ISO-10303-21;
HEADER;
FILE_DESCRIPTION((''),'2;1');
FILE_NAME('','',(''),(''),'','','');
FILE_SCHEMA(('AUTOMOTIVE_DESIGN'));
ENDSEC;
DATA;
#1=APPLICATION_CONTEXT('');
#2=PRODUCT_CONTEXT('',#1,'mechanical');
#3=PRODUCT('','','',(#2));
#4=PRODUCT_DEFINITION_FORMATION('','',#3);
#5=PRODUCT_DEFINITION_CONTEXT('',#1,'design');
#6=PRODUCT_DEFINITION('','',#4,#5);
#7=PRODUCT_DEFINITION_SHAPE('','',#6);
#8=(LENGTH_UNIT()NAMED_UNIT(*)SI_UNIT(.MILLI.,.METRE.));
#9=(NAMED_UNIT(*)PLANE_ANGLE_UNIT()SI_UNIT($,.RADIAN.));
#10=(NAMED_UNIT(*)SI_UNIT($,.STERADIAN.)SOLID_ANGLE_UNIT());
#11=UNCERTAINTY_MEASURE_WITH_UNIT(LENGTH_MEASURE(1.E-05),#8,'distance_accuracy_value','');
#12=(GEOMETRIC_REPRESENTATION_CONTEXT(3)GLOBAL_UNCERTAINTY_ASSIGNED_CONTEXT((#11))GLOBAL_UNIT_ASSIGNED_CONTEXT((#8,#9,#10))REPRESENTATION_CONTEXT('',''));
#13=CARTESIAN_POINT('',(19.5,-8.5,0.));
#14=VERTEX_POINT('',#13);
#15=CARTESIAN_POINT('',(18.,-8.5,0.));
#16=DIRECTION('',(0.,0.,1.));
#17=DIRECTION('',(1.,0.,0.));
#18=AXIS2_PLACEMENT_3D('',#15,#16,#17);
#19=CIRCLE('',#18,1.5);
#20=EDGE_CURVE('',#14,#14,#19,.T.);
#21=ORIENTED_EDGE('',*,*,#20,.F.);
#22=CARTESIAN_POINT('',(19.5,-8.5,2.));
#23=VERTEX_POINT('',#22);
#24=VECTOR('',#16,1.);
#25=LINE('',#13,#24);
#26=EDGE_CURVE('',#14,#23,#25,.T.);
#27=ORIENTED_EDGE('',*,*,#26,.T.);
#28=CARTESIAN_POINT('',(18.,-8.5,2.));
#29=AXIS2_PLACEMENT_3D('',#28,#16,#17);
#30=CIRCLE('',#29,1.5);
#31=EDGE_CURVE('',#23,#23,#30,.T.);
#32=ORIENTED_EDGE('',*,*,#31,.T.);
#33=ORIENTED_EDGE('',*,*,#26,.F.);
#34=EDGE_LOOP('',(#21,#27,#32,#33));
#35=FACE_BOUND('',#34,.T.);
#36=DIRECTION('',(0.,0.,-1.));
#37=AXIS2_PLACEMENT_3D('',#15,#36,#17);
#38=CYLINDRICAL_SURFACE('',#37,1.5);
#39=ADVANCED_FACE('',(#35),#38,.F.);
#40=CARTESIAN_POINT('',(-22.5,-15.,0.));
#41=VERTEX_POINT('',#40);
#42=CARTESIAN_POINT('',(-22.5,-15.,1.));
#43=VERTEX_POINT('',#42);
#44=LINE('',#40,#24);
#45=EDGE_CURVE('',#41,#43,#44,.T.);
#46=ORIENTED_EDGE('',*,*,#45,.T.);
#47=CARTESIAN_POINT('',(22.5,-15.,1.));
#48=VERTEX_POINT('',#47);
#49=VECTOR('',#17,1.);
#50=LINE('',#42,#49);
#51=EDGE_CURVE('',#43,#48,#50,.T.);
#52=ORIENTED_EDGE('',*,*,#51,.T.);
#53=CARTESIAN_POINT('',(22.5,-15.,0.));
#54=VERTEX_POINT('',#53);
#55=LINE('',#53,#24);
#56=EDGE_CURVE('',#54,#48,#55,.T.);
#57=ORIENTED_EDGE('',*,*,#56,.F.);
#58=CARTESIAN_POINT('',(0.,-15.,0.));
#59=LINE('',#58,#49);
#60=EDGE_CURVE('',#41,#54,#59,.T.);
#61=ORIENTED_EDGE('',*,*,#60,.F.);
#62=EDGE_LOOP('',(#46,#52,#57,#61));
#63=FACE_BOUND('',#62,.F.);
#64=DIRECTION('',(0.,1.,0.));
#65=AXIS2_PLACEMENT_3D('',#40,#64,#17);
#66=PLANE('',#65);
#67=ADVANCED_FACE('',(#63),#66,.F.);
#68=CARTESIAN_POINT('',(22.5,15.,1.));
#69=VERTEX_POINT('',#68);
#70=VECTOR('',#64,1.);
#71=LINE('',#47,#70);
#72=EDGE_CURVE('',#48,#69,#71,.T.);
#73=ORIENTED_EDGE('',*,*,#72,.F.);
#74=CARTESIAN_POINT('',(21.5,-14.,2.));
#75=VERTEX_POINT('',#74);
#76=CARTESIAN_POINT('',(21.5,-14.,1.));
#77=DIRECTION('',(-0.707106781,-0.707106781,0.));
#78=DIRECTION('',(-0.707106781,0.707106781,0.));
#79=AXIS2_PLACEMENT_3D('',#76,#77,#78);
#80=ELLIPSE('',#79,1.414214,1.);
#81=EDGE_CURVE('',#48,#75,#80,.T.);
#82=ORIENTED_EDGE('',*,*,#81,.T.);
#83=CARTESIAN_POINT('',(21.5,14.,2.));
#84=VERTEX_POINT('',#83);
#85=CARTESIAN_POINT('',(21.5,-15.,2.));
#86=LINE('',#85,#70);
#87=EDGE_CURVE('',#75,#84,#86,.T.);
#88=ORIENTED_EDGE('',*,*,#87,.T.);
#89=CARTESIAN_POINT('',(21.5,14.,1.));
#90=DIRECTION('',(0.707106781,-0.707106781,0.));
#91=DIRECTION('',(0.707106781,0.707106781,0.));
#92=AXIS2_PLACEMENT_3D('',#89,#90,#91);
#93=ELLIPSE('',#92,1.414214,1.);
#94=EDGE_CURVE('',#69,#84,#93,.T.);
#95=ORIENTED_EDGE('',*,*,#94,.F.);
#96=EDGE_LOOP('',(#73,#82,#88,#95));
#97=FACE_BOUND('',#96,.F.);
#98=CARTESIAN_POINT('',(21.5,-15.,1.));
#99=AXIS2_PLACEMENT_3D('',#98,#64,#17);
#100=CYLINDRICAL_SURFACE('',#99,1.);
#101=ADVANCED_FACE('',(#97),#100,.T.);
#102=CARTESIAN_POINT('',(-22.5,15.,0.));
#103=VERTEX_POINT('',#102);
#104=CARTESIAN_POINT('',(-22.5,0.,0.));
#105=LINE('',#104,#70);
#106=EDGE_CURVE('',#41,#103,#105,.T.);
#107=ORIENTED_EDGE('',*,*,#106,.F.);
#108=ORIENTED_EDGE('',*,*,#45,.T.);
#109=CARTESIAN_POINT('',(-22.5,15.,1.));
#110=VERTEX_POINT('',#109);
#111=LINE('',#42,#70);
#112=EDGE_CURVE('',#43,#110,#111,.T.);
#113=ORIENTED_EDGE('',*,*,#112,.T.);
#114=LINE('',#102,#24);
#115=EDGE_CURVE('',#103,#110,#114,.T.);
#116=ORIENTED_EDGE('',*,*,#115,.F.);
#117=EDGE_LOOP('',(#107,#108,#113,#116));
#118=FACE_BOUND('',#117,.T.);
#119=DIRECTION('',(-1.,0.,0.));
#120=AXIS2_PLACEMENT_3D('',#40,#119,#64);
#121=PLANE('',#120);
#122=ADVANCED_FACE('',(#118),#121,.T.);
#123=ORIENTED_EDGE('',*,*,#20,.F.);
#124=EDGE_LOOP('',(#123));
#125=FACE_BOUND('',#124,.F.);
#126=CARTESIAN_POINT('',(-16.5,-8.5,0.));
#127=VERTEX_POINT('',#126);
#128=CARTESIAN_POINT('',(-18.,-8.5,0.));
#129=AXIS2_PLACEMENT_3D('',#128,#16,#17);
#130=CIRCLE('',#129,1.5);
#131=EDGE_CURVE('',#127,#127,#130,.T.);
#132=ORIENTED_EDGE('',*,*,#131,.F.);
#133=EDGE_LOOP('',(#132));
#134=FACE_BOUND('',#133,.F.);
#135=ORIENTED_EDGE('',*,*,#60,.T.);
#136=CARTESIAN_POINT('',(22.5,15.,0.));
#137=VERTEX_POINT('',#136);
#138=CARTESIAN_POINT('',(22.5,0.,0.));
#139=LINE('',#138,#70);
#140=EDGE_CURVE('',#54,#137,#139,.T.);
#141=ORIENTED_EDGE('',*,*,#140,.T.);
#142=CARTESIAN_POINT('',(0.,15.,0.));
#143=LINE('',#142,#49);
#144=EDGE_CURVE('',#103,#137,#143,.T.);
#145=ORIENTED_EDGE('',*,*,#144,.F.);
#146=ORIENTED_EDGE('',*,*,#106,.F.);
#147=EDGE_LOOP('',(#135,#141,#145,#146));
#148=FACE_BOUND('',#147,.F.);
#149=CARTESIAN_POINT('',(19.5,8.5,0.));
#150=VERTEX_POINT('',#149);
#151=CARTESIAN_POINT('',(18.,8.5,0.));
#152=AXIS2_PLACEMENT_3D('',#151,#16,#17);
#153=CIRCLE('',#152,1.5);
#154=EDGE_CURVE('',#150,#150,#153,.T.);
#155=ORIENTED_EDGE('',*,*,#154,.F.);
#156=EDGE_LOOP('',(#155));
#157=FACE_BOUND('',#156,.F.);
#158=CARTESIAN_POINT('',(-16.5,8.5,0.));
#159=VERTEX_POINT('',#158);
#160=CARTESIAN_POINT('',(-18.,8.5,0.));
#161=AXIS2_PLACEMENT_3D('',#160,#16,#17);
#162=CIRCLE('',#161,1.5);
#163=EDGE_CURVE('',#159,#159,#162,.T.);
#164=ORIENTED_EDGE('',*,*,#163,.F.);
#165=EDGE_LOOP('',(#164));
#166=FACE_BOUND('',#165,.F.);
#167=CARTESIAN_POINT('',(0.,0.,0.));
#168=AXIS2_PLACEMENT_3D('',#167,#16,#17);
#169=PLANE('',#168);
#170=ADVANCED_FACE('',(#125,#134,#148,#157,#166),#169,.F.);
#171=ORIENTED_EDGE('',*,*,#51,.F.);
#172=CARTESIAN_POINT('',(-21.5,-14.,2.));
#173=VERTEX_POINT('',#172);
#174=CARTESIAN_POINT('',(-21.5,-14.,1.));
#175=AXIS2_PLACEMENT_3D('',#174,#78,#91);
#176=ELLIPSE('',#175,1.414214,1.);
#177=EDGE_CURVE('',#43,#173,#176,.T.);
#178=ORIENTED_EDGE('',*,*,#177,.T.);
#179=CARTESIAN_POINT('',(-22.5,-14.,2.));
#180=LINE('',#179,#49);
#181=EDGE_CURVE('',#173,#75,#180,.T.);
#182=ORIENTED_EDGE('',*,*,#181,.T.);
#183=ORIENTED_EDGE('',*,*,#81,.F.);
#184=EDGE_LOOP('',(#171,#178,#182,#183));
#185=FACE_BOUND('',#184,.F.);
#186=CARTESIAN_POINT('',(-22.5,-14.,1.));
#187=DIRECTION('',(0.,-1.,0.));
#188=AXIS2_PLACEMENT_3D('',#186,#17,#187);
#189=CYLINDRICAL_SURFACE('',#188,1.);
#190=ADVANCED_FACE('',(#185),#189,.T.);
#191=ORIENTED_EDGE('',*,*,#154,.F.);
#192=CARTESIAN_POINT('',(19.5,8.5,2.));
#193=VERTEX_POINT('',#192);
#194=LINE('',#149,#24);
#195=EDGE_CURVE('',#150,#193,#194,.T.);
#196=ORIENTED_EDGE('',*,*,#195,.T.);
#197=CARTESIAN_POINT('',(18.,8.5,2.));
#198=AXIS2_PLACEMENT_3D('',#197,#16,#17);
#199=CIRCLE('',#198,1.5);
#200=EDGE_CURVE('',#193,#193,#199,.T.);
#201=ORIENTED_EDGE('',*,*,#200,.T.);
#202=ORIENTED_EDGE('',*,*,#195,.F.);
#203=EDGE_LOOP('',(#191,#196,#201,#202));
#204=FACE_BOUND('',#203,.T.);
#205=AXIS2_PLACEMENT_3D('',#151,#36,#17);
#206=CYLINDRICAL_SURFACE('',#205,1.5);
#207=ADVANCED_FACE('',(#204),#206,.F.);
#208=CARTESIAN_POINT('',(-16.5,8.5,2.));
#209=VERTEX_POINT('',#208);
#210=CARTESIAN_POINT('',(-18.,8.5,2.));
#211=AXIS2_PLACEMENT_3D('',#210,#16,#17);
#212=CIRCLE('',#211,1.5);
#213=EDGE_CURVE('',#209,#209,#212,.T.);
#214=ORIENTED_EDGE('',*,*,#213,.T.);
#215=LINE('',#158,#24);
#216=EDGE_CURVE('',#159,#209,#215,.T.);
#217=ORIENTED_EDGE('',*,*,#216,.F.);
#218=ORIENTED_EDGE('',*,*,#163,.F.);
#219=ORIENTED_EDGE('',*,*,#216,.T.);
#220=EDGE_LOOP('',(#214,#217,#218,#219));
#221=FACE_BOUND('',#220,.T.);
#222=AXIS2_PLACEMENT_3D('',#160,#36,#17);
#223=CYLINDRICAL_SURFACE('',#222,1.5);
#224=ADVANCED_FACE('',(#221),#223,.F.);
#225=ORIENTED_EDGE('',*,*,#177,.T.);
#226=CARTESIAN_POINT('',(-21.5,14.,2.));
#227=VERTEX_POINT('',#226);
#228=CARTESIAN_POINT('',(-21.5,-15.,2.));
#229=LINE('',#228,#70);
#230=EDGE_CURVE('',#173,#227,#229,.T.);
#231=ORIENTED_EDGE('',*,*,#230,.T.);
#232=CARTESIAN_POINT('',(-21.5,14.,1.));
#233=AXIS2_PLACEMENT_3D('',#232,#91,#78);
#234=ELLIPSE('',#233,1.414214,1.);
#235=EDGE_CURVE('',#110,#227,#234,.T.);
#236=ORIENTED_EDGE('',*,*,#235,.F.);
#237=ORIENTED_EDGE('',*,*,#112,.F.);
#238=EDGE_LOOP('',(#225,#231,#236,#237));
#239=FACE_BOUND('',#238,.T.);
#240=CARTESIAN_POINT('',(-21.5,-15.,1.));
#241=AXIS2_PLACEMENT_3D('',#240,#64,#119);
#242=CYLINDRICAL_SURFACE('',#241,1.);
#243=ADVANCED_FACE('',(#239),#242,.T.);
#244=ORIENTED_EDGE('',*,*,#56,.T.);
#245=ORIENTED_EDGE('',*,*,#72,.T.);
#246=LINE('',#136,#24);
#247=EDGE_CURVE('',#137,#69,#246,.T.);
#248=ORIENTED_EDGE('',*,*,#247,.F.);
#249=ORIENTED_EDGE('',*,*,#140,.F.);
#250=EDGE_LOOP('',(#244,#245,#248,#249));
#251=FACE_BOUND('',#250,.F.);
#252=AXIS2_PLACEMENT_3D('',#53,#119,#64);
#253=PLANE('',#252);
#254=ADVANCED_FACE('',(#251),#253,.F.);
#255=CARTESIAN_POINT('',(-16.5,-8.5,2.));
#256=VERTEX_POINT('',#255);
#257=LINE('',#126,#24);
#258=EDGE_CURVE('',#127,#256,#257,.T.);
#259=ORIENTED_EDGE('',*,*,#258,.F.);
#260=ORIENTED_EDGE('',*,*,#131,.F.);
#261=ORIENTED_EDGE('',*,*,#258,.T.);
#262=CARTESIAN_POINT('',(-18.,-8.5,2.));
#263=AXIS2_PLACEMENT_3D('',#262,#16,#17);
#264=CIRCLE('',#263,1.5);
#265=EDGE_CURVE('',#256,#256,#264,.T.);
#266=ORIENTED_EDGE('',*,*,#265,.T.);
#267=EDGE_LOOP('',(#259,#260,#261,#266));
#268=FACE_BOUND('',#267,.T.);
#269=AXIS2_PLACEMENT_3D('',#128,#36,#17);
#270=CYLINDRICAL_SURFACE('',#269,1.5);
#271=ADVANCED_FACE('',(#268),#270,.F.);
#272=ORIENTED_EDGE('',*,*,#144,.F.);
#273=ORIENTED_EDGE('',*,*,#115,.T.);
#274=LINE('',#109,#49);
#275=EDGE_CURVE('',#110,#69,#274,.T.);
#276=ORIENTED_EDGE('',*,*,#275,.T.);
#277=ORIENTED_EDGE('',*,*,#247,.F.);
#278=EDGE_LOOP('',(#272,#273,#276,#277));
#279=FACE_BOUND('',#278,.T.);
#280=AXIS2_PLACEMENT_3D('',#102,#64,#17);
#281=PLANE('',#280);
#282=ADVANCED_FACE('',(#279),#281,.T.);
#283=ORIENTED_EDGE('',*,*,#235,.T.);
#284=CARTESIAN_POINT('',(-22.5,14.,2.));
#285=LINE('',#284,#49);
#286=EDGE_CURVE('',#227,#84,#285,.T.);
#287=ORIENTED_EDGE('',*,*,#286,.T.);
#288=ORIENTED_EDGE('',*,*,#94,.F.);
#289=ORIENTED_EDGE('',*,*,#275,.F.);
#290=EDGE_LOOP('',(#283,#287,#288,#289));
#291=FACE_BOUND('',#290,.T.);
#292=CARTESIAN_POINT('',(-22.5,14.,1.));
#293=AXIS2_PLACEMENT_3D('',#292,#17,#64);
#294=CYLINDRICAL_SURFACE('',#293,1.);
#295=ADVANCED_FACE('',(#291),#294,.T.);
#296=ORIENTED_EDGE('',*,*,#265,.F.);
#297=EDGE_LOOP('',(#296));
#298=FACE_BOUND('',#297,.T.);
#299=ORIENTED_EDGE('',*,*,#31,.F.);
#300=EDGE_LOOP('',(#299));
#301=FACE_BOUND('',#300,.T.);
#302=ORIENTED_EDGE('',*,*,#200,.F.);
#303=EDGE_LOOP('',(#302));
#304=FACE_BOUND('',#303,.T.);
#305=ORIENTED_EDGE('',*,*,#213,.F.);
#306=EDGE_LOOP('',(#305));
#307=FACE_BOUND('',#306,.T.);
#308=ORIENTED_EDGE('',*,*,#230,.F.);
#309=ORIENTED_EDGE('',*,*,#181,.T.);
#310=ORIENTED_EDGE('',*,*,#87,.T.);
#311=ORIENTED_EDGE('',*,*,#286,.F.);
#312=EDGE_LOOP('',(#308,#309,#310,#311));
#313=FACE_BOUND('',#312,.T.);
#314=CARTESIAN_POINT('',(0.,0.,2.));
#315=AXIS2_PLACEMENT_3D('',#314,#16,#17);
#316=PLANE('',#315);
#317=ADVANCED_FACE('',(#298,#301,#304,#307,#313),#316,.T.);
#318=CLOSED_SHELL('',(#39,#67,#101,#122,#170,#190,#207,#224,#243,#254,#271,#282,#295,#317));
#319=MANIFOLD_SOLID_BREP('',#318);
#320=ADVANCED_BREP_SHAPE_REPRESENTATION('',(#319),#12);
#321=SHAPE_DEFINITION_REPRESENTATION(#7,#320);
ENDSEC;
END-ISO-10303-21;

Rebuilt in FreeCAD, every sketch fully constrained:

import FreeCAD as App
import Part
import Sketcher
Q = App.Units.Quantity


def edges_at(feature, points):
    """Names of the edges that pass closest to the given points."""
    edges = feature.Shape.Edges
    near = lambda p: min(range(len(edges)), key=lambda i: edges[i].distToShape(Part.Vertex(*p))[0])
    return sorted({f"Edge{near(p) + 1}" for p in points})

doc = App.newDocument("Part")
params = doc.addObject("Spreadsheet::Sheet", "Params")
for row, (alias, value) in enumerate([
    ("sketch1_diameter", "3 mm"),
    ("sketch1_width", "45 mm"),
    ("sketch1_height", "30 mm"),
    ("pad1_length", "2 mm"),
    ("fillet_radius", "1 mm"),
], start=1):
    params.set(f"A{row}", alias)
    params.set(f"B{row}", "=" + value)
    params.setAlias(f"B{row}", alias)

body = doc.addObject("PartDesign::Body", "Body")

# Sketch on XY plane
sketch1 = body.newObject("Sketcher::SketchObject", "Sketch")
sketch1.AttachmentSupport = (doc.getObject("XY_Plane"), [""])
sketch1.MapMode = "FlatFace"
sketch1.addGeometry(Part.LineSegment(App.Vector(-22.5, 15, 0), App.Vector(-22.5, -15, 0)), False)
sketch1.addGeometry(Part.LineSegment(App.Vector(-22.5, -15, 0), App.Vector(22.5, -15, 0)), False)
sketch1.addGeometry(Part.LineSegment(App.Vector(22.5, -15, 0), App.Vector(22.5, 15, 0)), False)
sketch1.addGeometry(Part.LineSegment(App.Vector(22.5, 15, 0), App.Vector(-22.5, 15, 0)), False)
sketch1.addGeometry(Part.Circle(App.Vector(-18, -8.5, 0), App.Vector(0, 0, 1), 1.5), False)
sketch1.addGeometry(Part.Circle(App.Vector(18, -8.5, 0), App.Vector(0, 0, 1), 1.5), False)
sketch1.addGeometry(Part.Circle(App.Vector(-18, 8.5, 0), App.Vector(0, 0, 1), 1.5), False)
sketch1.addGeometry(Part.Circle(App.Vector(18, 8.5, 0), App.Vector(0, 0, 1), 1.5), False)
sketch1.addConstraint(Sketcher.Constraint("Coincident", 0, 2, 1, 1))
sketch1.addConstraint(Sketcher.Constraint("Coincident", 1, 2, 2, 1))
sketch1.addConstraint(Sketcher.Constraint("Coincident", 2, 2, 3, 1))
sketch1.addConstraint(Sketcher.Constraint("Coincident", 3, 2, 0, 1))
sketch1.addConstraint(Sketcher.Constraint("Vertical", 0))
sketch1.addConstraint(Sketcher.Constraint("Horizontal", 1))
sketch1.addConstraint(Sketcher.Constraint("Vertical", 2))
sketch1.addConstraint(Sketcher.Constraint("Horizontal", 3))
sketch1.addConstraint(Sketcher.Constraint("Equal", 4, 5))
sketch1.addConstraint(Sketcher.Constraint("Equal", 5, 6))
sketch1.addConstraint(Sketcher.Constraint("Equal", 6, 7))
sketch1.addConstraint(Sketcher.Constraint("Symmetric", 5, 3, 6, 3, -1, 1))
sketch1.addConstraint(Sketcher.Constraint("Symmetric", 4, 3, 7, 3, -1, 1))
sketch1.addConstraint(Sketcher.Constraint("Symmetric", 0, 2, 2, 2, -1, 1))
sketch1.addConstraint(Sketcher.Constraint("Symmetric", 4, 3, 5, 3, -2))
sketch1.addConstraint(Sketcher.Constraint("Diameter", 4, Q("3 mm")))
sketch1.addConstraint(Sketcher.Constraint("DistanceX", 1, 1, 1, 2, Q("45 mm")))
sketch1.addConstraint(Sketcher.Constraint("DistanceY", 0, 2, 0, 1, Q("30 mm")))
sketch1.addConstraint(Sketcher.Constraint("DistanceX", 4, 3, -1, 1, Q("18 mm")))
sketch1.addConstraint(Sketcher.Constraint("DistanceY", 4, 3, 6, 3, Q("17 mm")))
sketch1.setExpression("Constraints[15]", "Params.sketch1_diameter")
sketch1.setExpression("Constraints[16]", "Params.sketch1_width")
sketch1.setExpression("Constraints[17]", "Params.sketch1_height")
pad1 = body.newObject("PartDesign::Pad", "Pad")
pad1.Profile = sketch1
pad1.setExpression("Length", "Params.pad1_length")
doc.recompute()

fillet = body.newObject("PartDesign::Fillet", "Fillet")
fillet.Base = (pad1, edges_at(pad1, [
    (-22.5, 0, 2),
    (0, 15, 2),
    (22.5, 0, 2),
    (0, -15, 2),
]))
fillet.setExpression("Radius", "Params.fillet_radius")

doc.recompute()
